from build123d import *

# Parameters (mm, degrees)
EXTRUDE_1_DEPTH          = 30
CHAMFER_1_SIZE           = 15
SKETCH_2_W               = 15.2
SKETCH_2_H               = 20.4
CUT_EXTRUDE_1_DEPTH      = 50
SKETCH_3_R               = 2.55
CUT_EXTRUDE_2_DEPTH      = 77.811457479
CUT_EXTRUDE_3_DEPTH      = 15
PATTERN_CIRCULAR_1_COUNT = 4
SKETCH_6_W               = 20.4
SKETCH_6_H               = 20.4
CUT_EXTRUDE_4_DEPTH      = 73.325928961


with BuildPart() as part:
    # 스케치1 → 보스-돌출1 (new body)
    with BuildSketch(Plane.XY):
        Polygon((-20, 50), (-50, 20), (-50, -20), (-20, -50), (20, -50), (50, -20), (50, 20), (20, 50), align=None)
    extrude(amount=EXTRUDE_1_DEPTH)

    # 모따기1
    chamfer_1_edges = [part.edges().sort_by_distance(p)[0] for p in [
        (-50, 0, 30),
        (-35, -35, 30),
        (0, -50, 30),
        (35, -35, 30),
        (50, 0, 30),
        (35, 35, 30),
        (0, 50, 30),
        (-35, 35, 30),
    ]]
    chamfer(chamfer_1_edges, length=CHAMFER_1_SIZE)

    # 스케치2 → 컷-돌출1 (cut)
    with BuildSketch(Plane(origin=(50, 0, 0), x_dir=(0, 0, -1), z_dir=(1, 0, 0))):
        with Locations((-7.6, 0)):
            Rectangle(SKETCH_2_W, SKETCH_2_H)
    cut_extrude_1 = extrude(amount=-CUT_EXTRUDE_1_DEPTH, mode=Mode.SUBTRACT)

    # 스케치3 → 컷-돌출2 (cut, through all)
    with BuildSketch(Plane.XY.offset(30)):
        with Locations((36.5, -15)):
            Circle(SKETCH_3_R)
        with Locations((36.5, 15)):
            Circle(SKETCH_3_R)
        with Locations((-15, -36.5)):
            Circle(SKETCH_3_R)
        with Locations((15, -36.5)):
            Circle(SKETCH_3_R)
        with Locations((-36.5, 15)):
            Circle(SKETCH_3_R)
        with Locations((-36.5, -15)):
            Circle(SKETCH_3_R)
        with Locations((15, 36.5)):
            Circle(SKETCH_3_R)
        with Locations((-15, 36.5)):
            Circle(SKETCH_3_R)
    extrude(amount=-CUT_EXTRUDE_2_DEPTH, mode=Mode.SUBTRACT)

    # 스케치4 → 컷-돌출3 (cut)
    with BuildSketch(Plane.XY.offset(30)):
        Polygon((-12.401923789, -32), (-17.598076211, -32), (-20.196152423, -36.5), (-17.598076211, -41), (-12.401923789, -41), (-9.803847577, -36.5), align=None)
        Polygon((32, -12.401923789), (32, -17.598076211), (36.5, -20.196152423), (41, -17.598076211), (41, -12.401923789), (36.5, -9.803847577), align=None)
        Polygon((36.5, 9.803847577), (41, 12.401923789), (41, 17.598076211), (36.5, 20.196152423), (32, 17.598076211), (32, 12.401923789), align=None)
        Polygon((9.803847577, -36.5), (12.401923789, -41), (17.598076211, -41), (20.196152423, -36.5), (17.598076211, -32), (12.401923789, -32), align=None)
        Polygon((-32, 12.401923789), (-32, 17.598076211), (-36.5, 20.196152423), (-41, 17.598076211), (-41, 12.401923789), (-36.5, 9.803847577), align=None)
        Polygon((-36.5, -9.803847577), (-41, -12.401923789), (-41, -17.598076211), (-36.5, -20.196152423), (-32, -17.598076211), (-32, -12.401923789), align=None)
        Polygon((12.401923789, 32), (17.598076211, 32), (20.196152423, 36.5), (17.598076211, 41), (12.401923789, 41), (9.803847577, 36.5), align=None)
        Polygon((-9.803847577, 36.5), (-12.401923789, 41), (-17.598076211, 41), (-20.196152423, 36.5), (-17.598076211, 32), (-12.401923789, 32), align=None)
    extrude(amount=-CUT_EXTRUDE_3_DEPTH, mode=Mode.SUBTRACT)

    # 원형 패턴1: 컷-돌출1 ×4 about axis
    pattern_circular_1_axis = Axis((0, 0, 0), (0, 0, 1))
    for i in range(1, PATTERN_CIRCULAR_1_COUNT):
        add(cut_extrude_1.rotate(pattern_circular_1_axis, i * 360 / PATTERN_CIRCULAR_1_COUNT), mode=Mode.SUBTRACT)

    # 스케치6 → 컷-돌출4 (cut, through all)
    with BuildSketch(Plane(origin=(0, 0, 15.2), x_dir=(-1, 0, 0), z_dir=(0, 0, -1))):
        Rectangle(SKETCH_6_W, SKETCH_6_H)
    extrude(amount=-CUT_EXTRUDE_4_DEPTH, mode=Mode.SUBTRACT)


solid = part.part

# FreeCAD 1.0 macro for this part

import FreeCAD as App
import Part
import Sketcher
Q = App.Units.Quantity


def edges_at(feature, points):
    """Names of the edges that pass closest to the given points."""
    edges = feature.Shape.Edges
    near = lambda p: min(range(len(edges)), key=lambda i: edges[i].distToShape(Part.Vertex(*p))[0])
    return sorted({f"Edge{near(p) + 1}" for p in points})


def add_polygon(sketch, points):
    """Adds a closed chain of lines whose ends are joined by coincident constraints."""
    first, n = sketch.GeometryCount, len(points)
    for a, b in zip(points, points[1:] + points[:1]):
        sketch.addGeometry(Part.LineSegment(App.Vector(*a, 0), App.Vector(*b, 0)), False)
    for i in range(n):
        sketch.addConstraint(Sketcher.Constraint("Coincident", first + i, 2, first + (i + 1) % n, 1))

doc = App.newDocument("Part")
params = doc.addObject("Spreadsheet::Sheet", "Params")
for row, (alias, value) in enumerate([
    ("sketch1_width", "40 mm"),
    ("pad1_length", "30 mm"),
    ("chamfer_size", "15 mm"),
    ("sketch2_width", "20.4 mm"),
    ("sketch2_height", "15.2 mm"),
    ("pocket1_length", "50 mm"),
    ("sketch3_diameter", "5.1 mm"),
    ("pocket3_length", "15 mm"),
    ("sketch5_width", "20.4 mm"),
], start=1):
    params.set(f"A{row}", alias)
    params.set(f"B{row}", "=" + value)
    params.setAlias(f"B{row}", alias)

body = doc.addObject("PartDesign::Body", "Body")

# Sketch on XY plane
sketch1 = doc.addObject("Sketcher::SketchObject", "Sketch")
body.addObject(sketch1)
sketch1.AttachmentSupport = (doc.XY_Plane, [""])
sketch1.MapMode = "FlatFace"
add_polygon(sketch1, [(-20, 50), (-50, 20), (-50, -20), (-20, -50), (20, -50), (50, -20), (50, 20), (20, 50)])  # lines 0-7
sketch1.addConstraint([
    Sketcher.Constraint("Vertical", 1),
    Sketcher.Constraint("Horizontal", 3),
    Sketcher.Constraint("Vertical", 5),
    Sketcher.Constraint("Horizontal", 7),
    Sketcher.Constraint("Symmetric", 0, 2, 4, 2, -1, 1),
    Sketcher.Constraint("Symmetric", 2, 2, 6, 2, -1, 1),
    Sketcher.Constraint("Perpendicular", 0, 2),
    Sketcher.Constraint("Perpendicular", 2, 4),
    Sketcher.Constraint("Perpendicular", 4, 6),
    Sketcher.Constraint("Horizontal", 1, 2, 4, 2),
    Sketcher.Constraint("Vertical", 3, 2, 6, 2),
    Sketcher.Constraint("Equal", 7, 1),
    Sketcher.Constraint("DistanceX", 3, 1, 3, 2, Q("40 mm")),
    Sketcher.Constraint("DistanceX", 0, 2, -1, 1, Q("50 mm")),
])
sketch1.setExpression("Constraints[20]", "Params.sketch1_width")
pad1 = doc.addObject("PartDesign::Pad", "Pad")
body.addObject(pad1)
pad1.Profile = sketch1
pad1.setExpression("Length", "Params.pad1_length")
doc.recompute()

chamfer = doc.addObject("PartDesign::Chamfer", "Chamfer")
body.addObject(chamfer)
chamfer.Base = (pad1, edges_at(pad1, [
    (-50, 0, 30),
    (-35, -35, 30),
    (0, -50, 30),
    (35, -35, 30),
    (50, 0, 30),
    (35, 35, 30),
    (0, 50, 30),
    (-35, 35, 30),
]))
chamfer.setExpression("Size", "Params.chamfer_size")

# Sketch on YZ plane
sketch2 = doc.addObject("Sketcher::SketchObject", "Sketch001")
body.addObject(sketch2)
sketch2.AttachmentSupport = (doc.YZ_Plane, [""])
sketch2.MapMode = "FlatFace"
sketch2.AttachmentOffset = App.Placement(App.Vector(0, 0, 50), App.Rotation())
add_polygon(sketch2, [(10, 15), (-10, 15), (-10, 0), (10, 0)])  # lines 0-3
sketch2.addConstraint([
    Sketcher.Constraint("Horizontal", 0),
    Sketcher.Constraint("Vertical", 1),
    Sketcher.Constraint("Horizontal", 2),
    Sketcher.Constraint("Vertical", 3),
    Sketcher.Constraint("Symmetric", 1, 2, 2, 2, -1, 1),
    Sketcher.Constraint("DistanceX", 0, 2, 0, 1, Q("20.4 mm")),
    Sketcher.Constraint("DistanceY", 1, 2, 1, 1, Q("15.2 mm")),
])
sketch2.setExpression("Constraints[9]", "Params.sketch2_width")
sketch2.setExpression("Constraints[10]", "Params.sketch2_height")
pocket1 = doc.addObject("PartDesign::Pocket", "Pocket")
body.addObject(pocket1)
pocket1.Profile = sketch2
pocket1.setExpression("Length", "Params.pocket1_length")

# Sketch on XY plane
sketch3 = doc.addObject("Sketcher::SketchObject", "Sketch002")
body.addObject(sketch3)
sketch3.AttachmentSupport = (doc.XY_Plane, [""])
sketch3.MapMode = "FlatFace"
sketch3.AttachmentOffset = App.Placement(App.Vector(0, 0, 30), App.Rotation())
sketch3.addGeometry([
    Part.Circle(App.Vector(36.5, -15, 0), App.Vector(0, 0, 1), 2.5),  # 0
    Part.Circle(App.Vector(36.5, 15, 0), App.Vector(0, 0, 1), 2.5),  # 1
    Part.Circle(App.Vector(-15, -36.5, 0), App.Vector(0, 0, 1), 2.5),  # 2
    Part.Circle(App.Vector(15, -36.5, 0), App.Vector(0, 0, 1), 2.5),  # 3
    Part.Circle(App.Vector(-36.5, 15, 0), App.Vector(0, 0, 1), 2.5),  # 4
    Part.Circle(App.Vector(-36.5, -15, 0), App.Vector(0, 0, 1), 2.5),  # 5
    Part.Circle(App.Vector(15, 36.5, 0), App.Vector(0, 0, 1), 2.5),  # 6
    Part.Circle(App.Vector(-15, 36.5, 0), App.Vector(0, 0, 1), 2.5),  # 7
], False)
sketch3.addConstraint([
    Sketcher.Constraint("Equal", 0, 1),
    Sketcher.Constraint("Equal", 1, 2),
    Sketcher.Constraint("Equal", 2, 3),
    Sketcher.Constraint("Equal", 3, 4),
    Sketcher.Constraint("Equal", 4, 5),
    Sketcher.Constraint("Equal", 5, 6),
    Sketcher.Constraint("Equal", 6, 7),
    Sketcher.Constraint("Symmetric", 0, 3, 4, 3, -1, 1),
    Sketcher.Constraint("Symmetric", 1, 3, 5, 3, -1, 1),
    Sketcher.Constraint("Symmetric", 2, 3, 6, 3, -1, 1),
    Sketcher.Constraint("Symmetric", 3, 3, 7, 3, -1, 1),
    Sketcher.Constraint("Symmetric", 2, 3, 3, 3, -2),
    Sketcher.Constraint("Symmetric", 1, 3, 4, 3, -2),
    Sketcher.Constraint("Diameter", 0, Q("5.1 mm")),
    Sketcher.Constraint("DistanceY", 0, 3, -1, 1, Q("15 mm")),
    Sketcher.Constraint("DistanceX", 2, 3, -1, 1, Q("15 mm")),
    Sketcher.Constraint("DistanceX", 4, 3, 1, 3, Q("73 mm")),
    Sketcher.Constraint("DistanceY", 3, 3, 6, 3, Q("73 mm")),
])
sketch3.setExpression("Constraints[13]", "Params.sketch3_diameter")
pocket2 = doc.addObject("PartDesign::Pocket", "Pocket001")
body.addObject(pocket2)
pocket2.Profile = sketch3
pocket2.Type = "ThroughAll"

# Sketch on XY plane
sketch4 = doc.addObject("Sketcher::SketchObject", "Sketch003")
body.addObject(sketch4)
sketch4.AttachmentSupport = (doc.XY_Plane, [""])
sketch4.MapMode = "FlatFace"
sketch4.AttachmentOffset = App.Placement(App.Vector(0, 0, 30), App.Rotation())
add_polygon(sketch4, [(-12, -32), (-18, -32), (-20, -36), (-18, -41), (-12, -41), (-10, -36)])  # lines 0-5
add_polygon(sketch4, [(32, -12), (32, -18), (36, -20), (41, -18), (41, -12), (36, -10)])  # lines 6-11
add_polygon(sketch4, [(36, 10), (41, 12), (41, 18), (36, 20), (32, 18), (32, 12)])  # lines 12-17
add_polygon(sketch4, [(10, -36), (12, -41), (18, -41), (20, -36), (18, -32), (12, -32)])  # lines 18-23
add_polygon(sketch4, [(-32, 12), (-32, 18), (-36, 20), (-41, 18), (-41, 12), (-36, 10)])  # lines 24-29
add_polygon(sketch4, [(-36, -10), (-41, -12), (-41, -18), (-36, -20), (-32, -18), (-32, -12)])  # lines 30-35
add_polygon(sketch4, [(12, 32), (18, 32), (20, 36), (18, 41), (12, 41), (10, 36)])  # lines 36-41
add_polygon(sketch4, [(-10, 36), (-12, 41), (-18, 41), (-20, 36), (-18, 32), (-12, 32)])  # lines 42-47
sketch4.addConstraint([
    Sketcher.Constraint("Horizontal", 0),
    Sketcher.Constraint("Horizontal", 3),
    Sketcher.Constraint("Vertical", 6),
    Sketcher.Constraint("Vertical", 9),
    Sketcher.Constraint("Vertical", 13),
    Sketcher.Constraint("Vertical", 16),
    Sketcher.Constraint("Horizontal", 19),
    Sketcher.Constraint("Horizontal", 22),
    Sketcher.Constraint("Vertical", 24),
    Sketcher.Constraint("Vertical", 27),
    Sketcher.Constraint("Vertical", 31),
    Sketcher.Constraint("Vertical", 34),
    Sketcher.Constraint("Horizontal", 36),
    Sketcher.Constraint("Horizontal", 39),
    Sketcher.Constraint("Horizontal", 43),
    Sketcher.Constraint("Horizontal", 46),
    Sketcher.Constraint("Symmetric", 6, 2, 24, 2, -1, 1),
    Sketcher.Constraint("Symmetric", 7, 2, 25, 2, -1, 1),
    Sketcher.Constraint("Symmetric", 8, 2, 26, 2, -1, 1),
    Sketcher.Constraint("Symmetric", 10, 2, 28, 2, -1, 1),
    Sketcher.Constraint("Symmetric", 12, 2, 30, 2, -1, 1),
    Sketcher.Constraint("Symmetric", 14, 2, 32, 2, -1, 1),
    Sketcher.Constraint("Symmetric", 15, 2, 33, 2, -1, 1),
    Sketcher.Constraint("Symmetric", 17, 2, 35, 2, -1, 1),
    Sketcher.Constraint("Symmetric", 0, 2, 36, 2, -1, 1),
    Sketcher.Constraint("Symmetric", 1, 2, 37, 2, -1, 1),
    Sketcher.Constraint("Symmetric", 2, 2, 38, 2, -1, 1),
    Sketcher.Constraint("Symmetric", 4, 2, 40, 2, -1, 1),
    Sketcher.Constraint("Symmetric", 18, 2, 42, 2, -1, 1),
    Sketcher.Constraint("Symmetric", 20, 2, 44, 2, -1, 1),
    Sketcher.Constraint("Symmetric", 21, 2, 45, 2, -1, 1),
    Sketcher.Constraint("Symmetric", 23, 2, 47, 2, -1, 1),
    Sketcher.Constraint("Symmetric", 3, 2, 18, 2, -2),
    Sketcher.Constraint("Symmetric", 1, 2, 20, 2, -2),
    Sketcher.Constraint("Symmetric", 0, 2, 21, 2, -2),
    Sketcher.Constraint("Symmetric", 4, 2, 23, 2, -2),
    Sketcher.Constraint("Symmetric", 15, 2, 24, 2, -2),
    Sketcher.Constraint("Symmetric", 14, 2, 25, 2, -2),
    Sketcher.Constraint("Symmetric", 13, 2, 26, 2, -2),
    Sketcher.Constraint("Symmetric", 17, 2, 28, 2, -2),
    Sketcher.Constraint("Parallel", 1, 4),
    Sketcher.Constraint("Parallel", 2, 5),
    Sketcher.Constraint("Perpendicular", 4, 7),
    Sketcher.Constraint("Perpendicular", 5, 8),
    Sketcher.Constraint("Parallel", 7, 10),
    Sketcher.Constraint("Parallel", 8, 11),
    Sketcher.Constraint("Parallel", 11, 12),
    Sketcher.Constraint("Parallel", 10, 14),
    Sketcher.Constraint("Parallel", 14, 17),
    Sketcher.Constraint("Perpendicular", 17, 20),
    Sketcher.Constraint("Parallel", 20, 23),
    Sketcher.Constraint("Parallel", 25, 28),
    Sketcher.Constraint("Parallel", 26, 29),
    Sketcher.Constraint("Parallel", 28, 32),
    Sketcher.Constraint("Parallel", 32, 35),
    Sketcher.Constraint("Parallel", 37, 40),
    Sketcher.Constraint("Parallel", 38, 41),
    Sketcher.Constraint("Parallel", 40, 44),
    Sketcher.Constraint("Parallel", 44, 47),
    Sketcher.Constraint("Horizontal", 1, 2, 4, 2),
    Sketcher.Constraint("Horizontal", 6, 2, 8, 2),
    Sketcher.Constraint("Horizontal", 9, 2, 11, 2),
    Sketcher.Constraint("Vertical", 0, 2, 2, 2),
    Sketcher.Constraint("Equal", 46, 6),
    Sketcher.Constraint("Equal", 5, 7),
    Sketcher.Constraint("Angle", 1, Q("-120 deg")),
    Sketcher.Constraint("DistanceY", 0, 2, -1, 1, Q("32 mm")),
    Sketcher.Constraint("DistanceY", 2, 2, -1, 1, Q("41 mm")),
    Sketcher.Constraint("DistanceX", -1, 1, 6, 2, Q("32 mm")),
    Sketcher.Constraint("DistanceY", 8, 2, 12, 2, Q("30 mm")),
    Sketcher.Constraint("DistanceX", 2, 2, 18, 2, Q("30 mm")),
    Sketcher.Constraint("DistanceX", 0, 2, 0, 1, Q("5.196152 mm")),
])
pocket3 = doc.addObject("PartDesign::Pocket", "Pocket002")
body.addObject(pocket3)
pocket3.Profile = sketch4
pocket3.setExpression("Length", "Params.pocket3_length")
doc.recompute()

polarpattern = doc.addObject("PartDesign::PolarPattern", "PolarPattern")
body.addObject(polarpattern)
polarpattern.Originals = [pocket1]
polarpattern.Axis = (doc.Z_Axis, [""])
polarpattern.Angle = 360
polarpattern.Occurrences = 4
body.Tip = polarpattern

# Sketch on XY plane
sketch5 = doc.addObject("Sketcher::SketchObject", "Sketch004")
body.addObject(sketch5)
sketch5.AttachmentSupport = (doc.XY_Plane, [""])
sketch5.MapMode = "FlatFace"
sketch5.AttachmentOffset = App.Placement(App.Vector(0, 0, 15.2), App.Rotation())
add_polygon(sketch5, [(10, 10), (10, -10), (-10, -10), (-10, 10)])  # lines 0-3
sketch5.addConstraint([
    Sketcher.Constraint("Vertical", 0),
    Sketcher.Constraint("Horizontal", 1),
    Sketcher.Constraint("Vertical", 2),
    Sketcher.Constraint("Horizontal", 3),
    Sketcher.Constraint("Symmetric", 0, 2, 2, 2, -1, 1),
    Sketcher.Constraint("Equal", 3, 0),
    Sketcher.Constraint("DistanceX", 1, 2, 1, 1, Q("20.4 mm")),
])
sketch5.setExpression("Constraints[10]", "Params.sketch5_width")
pocket4 = doc.addObject("PartDesign::Pocket", "Pocket003")
body.addObject(pocket4)
pocket4.Profile = sketch5
pocket4.Type = "ThroughAll"
pocket4.Reversed = True

doc.recompute()
